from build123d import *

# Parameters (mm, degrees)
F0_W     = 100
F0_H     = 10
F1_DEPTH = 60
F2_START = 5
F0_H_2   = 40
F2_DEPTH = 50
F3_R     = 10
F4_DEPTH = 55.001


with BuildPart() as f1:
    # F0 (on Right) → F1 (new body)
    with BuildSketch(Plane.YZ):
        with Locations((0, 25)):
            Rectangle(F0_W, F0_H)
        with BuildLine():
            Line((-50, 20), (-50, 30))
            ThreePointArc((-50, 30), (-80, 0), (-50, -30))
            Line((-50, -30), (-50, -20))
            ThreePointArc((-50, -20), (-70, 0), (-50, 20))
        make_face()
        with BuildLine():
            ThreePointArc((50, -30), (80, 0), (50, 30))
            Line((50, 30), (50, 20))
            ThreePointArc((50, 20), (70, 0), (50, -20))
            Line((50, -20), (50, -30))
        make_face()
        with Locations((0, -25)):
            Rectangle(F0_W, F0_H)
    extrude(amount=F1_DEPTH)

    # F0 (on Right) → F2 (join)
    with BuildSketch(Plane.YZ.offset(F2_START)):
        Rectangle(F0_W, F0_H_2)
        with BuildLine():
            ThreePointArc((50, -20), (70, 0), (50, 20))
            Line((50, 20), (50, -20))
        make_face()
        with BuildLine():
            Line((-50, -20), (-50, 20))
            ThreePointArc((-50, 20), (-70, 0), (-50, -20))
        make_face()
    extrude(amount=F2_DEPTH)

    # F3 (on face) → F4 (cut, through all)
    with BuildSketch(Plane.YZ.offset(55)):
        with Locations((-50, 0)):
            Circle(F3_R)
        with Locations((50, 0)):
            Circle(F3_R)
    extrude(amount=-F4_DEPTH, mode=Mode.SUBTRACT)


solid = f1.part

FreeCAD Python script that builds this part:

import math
import FreeCAD as App
import Part
import Sketcher

V = App.Vector
Q = App.Units.Quantity

doc = App.newDocument("Part")
body = doc.addObject("PartDesign::Body", "Body")

# Sketch on YZ plane
sketch1 = doc.addObject("Sketcher::SketchObject", "Sketch")
body.addObject(sketch1)
sketch1.AttachmentSupport = (doc.YZ_Plane, [""])
sketch1.MapMode = "FlatFace"
sketch1.addGeometry(Part.ArcOfCircle(Part.Circle(V(50, 0, 0), V(0, 0, 1), 30), math.radians(-90), math.radians(90)), False)
sketch1.addGeometry(Part.LineSegment(V(50, 30, 0), V(-50, 30, 0)), False)
sketch1.addGeometry(Part.ArcOfCircle(Part.Circle(V(-50, 0, 0), V(0, 0, 1), 30), math.radians(90), math.radians(270)), False)
sketch1.addGeometry(Part.LineSegment(V(-50, -30, 0), V(50, -30, 0)), False)
sketch1.addGeometry(Part.LineSegment(V(-50, 20, 0), V(50, 20, 0)), False)
sketch1.addGeometry(Part.ArcOfCircle(Part.Circle(V(50, 0, 0), V(0, 0, 1), 20), math.radians(-90), math.radians(90)), False)
sketch1.addGeometry(Part.LineSegment(V(50, -20, 0), V(-50, -20, 0)), False)
sketch1.addGeometry(Part.ArcOfCircle(Part.Circle(V(-50, 0, 0), V(0, 0, 1), 20), math.radians(90), math.radians(270)), False)
sketch1.addConstraint(Sketcher.Constraint("Tangent", 0, 2, 1, 1))
sketch1.addConstraint(Sketcher.Constraint("Tangent", 1, 2, 2, 1))
sketch1.addConstraint(Sketcher.Constraint("Tangent", 2, 2, 3, 1))
sketch1.addConstraint(Sketcher.Constraint("Tangent", 3, 2, 0, 1))
sketch1.addConstraint(Sketcher.Constraint("Tangent", 4, 2, 5, 2))
sketch1.addConstraint(Sketcher.Constraint("Tangent", 5, 1, 6, 1))
sketch1.addConstraint(Sketcher.Constraint("Tangent", 6, 2, 7, 2))
sketch1.addConstraint(Sketcher.Constraint("Tangent", 7, 1, 4, 1))
sketch1.addConstraint(Sketcher.Constraint("Horizontal", 1))
sketch1.addConstraint(Sketcher.Constraint("Horizontal", 3))
sketch1.addConstraint(Sketcher.Constraint("Horizontal", 4))
sketch1.addConstraint(Sketcher.Constraint("Horizontal", 6))
sketch1.addConstraint(Sketcher.Constraint("Coincident", 5, 3, 0, 3))
sketch1.addConstraint(Sketcher.Constraint("Symmetric", 0, 3, 2, 3, -1, 1))
sketch1.addConstraint(Sketcher.Constraint("Vertical", 7, 3, 1, 2))
sketch1.addConstraint(Sketcher.Constraint("Radius", 0, Q("30 mm")))
sketch1.addConstraint(Sketcher.Constraint("Radius", 5, Q("20 mm")))
sketch1.addConstraint(Sketcher.Constraint("DistanceX", 1, 2, 1, 1, Q("100 mm")))
pad1 = doc.addObject("PartDesign::Pad", "Pad")
body.addObject(pad1)
pad1.Profile = sketch1
pad1.Length = 60

# Sketch on YZ plane
sketch2 = doc.addObject("Sketcher::SketchObject", "Sketch001")
body.addObject(sketch2)
sketch2.AttachmentSupport = (doc.YZ_Plane, [""])
sketch2.MapMode = "FlatFace"
sketch2.AttachmentOffset = App.Placement(V(0, 0, 5), App.Rotation())
sketch2.addGeometry(Part.LineSegment(V(-50, -20, 0), V(50, -20, 0)), False)
sketch2.addGeometry(Part.ArcOfCircle(Part.Circle(V(50, 0, 0), V(0, 0, 1), 20), math.radians(-90), math.radians(90)), False)
sketch2.addGeometry(Part.LineSegment(V(50, 20, 0), V(-50, 20, 0)), False)
sketch2.addGeometry(Part.ArcOfCircle(Part.Circle(V(-50, 0, 0), V(0, 0, 1), 20), math.radians(90), math.radians(270)), False)
sketch2.addConstraint(Sketcher.Constraint("Tangent", 0, 2, 1, 1))
sketch2.addConstraint(Sketcher.Constraint("Tangent", 1, 2, 2, 1))
sketch2.addConstraint(Sketcher.Constraint("Tangent", 2, 2, 3, 1))
sketch2.addConstraint(Sketcher.Constraint("Tangent", 3, 2, 0, 1))
sketch2.addConstraint(Sketcher.Constraint("Horizontal", 0))
sketch2.addConstraint(Sketcher.Constraint("Horizontal", 2))
sketch2.addConstraint(Sketcher.Constraint("Symmetric", 1, 3, 3, 3, -1, 1))
sketch2.addConstraint(Sketcher.Constraint("Radius", 1, Q("20 mm")))
sketch2.addConstraint(Sketcher.Constraint("DistanceX", 0, 1, 0, 2, Q("100 mm")))
pad2 = doc.addObject("PartDesign::Pad", "Pad001")
body.addObject(pad2)
pad2.Profile = sketch2
pad2.Length = 50

# Sketch on YZ plane
sketch3 = doc.addObject("Sketcher::SketchObject", "Sketch002")
body.addObject(sketch3)
sketch3.AttachmentSupport = (doc.YZ_Plane, [""])
sketch3.MapMode = "FlatFace"
sketch3.AttachmentOffset = App.Placement(V(0, 0, 55), App.Rotation())
sketch3.addGeometry(Part.Circle(V(-50, 0, 0), V(0, 0, 1), 10), False)
sketch3.addGeometry(Part.Circle(V(50, 0, 0), V(0, 0, 1), 10), False)
sketch3.addConstraint(Sketcher.Constraint("Equal", 0, 1))
sketch3.addConstraint(Sketcher.Constraint("Symmetric", 0, 3, 1, 3, -1, 1))
sketch3.addConstraint(Sketcher.Constraint("PointOnObject", 0, 3, -1))
sketch3.addConstraint(Sketcher.Constraint("Diameter", 0, Q("20 mm")))
sketch3.addConstraint(Sketcher.Constraint("DistanceX", 0, 3, -1, 1, Q("50 mm")))
pocket1 = doc.addObject("PartDesign::Pocket", "Pocket")
body.addObject(pocket1)
pocket1.Profile = sketch3
pocket1.Type = "ThroughAll"

doc.recompute()
